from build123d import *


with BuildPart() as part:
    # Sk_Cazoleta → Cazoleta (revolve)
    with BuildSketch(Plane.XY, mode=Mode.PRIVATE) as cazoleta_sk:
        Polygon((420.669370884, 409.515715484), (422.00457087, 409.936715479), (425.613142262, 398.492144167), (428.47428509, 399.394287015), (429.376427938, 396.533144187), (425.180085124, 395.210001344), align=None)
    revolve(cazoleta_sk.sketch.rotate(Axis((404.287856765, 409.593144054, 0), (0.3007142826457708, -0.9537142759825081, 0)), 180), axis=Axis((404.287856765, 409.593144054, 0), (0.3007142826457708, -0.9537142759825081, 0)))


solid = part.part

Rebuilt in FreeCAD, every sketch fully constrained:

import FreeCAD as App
import Part
import Sketcher
from FreeCAD import Vector
Q = App.Units.Quantity


def add_polygon(sketch, points):
    """Adds a closed chain of lines whose ends are joined by coincident constraints."""
    first, n = sketch.GeometryCount, len(points)
    for a, b in zip(points, points[1:] + points[:1]):
        sketch.addGeometry(Part.LineSegment(App.Vector(*a, 0), App.Vector(*b, 0)), False)
    for i in range(n):
        sketch.addConstraint(Sketcher.Constraint("Coincident", first + i, 2, first + (i + 1) % n, 1))

doc = App.newDocument("Part")
body = doc.addObject("PartDesign::Body", "Body")

# Sketch on XY plane
sketch1 = body.newObject("Sketcher::SketchObject", "Sketch")
sketch1.AttachmentSupport = (doc.getObject("XY_Plane"), [""])
sketch1.MapMode = "FlatFace"
add_polygon(sketch1, [(422.004571, 409.936715), (420.669371, 409.515715), (425.180085, 395.210001), (429.376428, 396.533144), (428.474285, 399.394287), (425.613142, 398.492144)])  # lines 0-5
sketch1.addGeometry(Part.LineSegment(Vector(405.791428, 404.824573, 0), Vector(410.302142, 390.518859, 0)), True)  # axis
sketch1.addConstraint(Sketcher.Constraint("Perpendicular", 0, 1))
sketch1.addConstraint(Sketcher.Constraint("Perpendicular", 1, 2))
sketch1.addConstraint(Sketcher.Constraint("Perpendicular", 2, 3))
sketch1.addConstraint(Sketcher.Constraint("Perpendicular", 3, 4))
sketch1.addConstraint(Sketcher.Constraint("Perpendicular", 4, 5))
sketch1.addConstraint(Sketcher.Constraint("Parallel", 5, 6))
sketch1.addConstraint(Sketcher.Constraint("Equal", 3, 4))
sketch1.addConstraint(Sketcher.Constraint("Equal", 1, 6))
sketch1.addConstraint(Sketcher.Constraint("Distance", 1, Q("15 mm")))
sketch1.addConstraint(Sketcher.Constraint("Distance", 3, Q("3 mm")))
sketch1.addConstraint(Sketcher.Constraint("Distance", 0, Q("1.4 mm")))
sketch1.addConstraint(Sketcher.Constraint("DistanceY", -1, 1, 1, 2, Q("395.210001 mm")))
sketch1.addConstraint(Sketcher.Constraint("DistanceY", 2, 2, 4, 2, Q("1.959 mm")))
sketch1.addConstraint(Sketcher.Constraint("DistanceX", 6, 2, 4, 2, Q("15.311 mm")))
sketch1.addConstraint(Sketcher.Constraint("DistanceX", -1, 1, 0, 2, Q("420.669371 mm")))
sketch1.addConstraint(Sketcher.Constraint("DistanceY", -1, 1, 6, 2, Q("390.518859 mm")))
revolution = body.newObject("PartDesign::Revolution", "Revolution")
revolution.Profile = sketch1
revolution.ReferenceAxis = (sketch1, ["Axis0"])
revolution.Angle = 360

doc.recompute()
